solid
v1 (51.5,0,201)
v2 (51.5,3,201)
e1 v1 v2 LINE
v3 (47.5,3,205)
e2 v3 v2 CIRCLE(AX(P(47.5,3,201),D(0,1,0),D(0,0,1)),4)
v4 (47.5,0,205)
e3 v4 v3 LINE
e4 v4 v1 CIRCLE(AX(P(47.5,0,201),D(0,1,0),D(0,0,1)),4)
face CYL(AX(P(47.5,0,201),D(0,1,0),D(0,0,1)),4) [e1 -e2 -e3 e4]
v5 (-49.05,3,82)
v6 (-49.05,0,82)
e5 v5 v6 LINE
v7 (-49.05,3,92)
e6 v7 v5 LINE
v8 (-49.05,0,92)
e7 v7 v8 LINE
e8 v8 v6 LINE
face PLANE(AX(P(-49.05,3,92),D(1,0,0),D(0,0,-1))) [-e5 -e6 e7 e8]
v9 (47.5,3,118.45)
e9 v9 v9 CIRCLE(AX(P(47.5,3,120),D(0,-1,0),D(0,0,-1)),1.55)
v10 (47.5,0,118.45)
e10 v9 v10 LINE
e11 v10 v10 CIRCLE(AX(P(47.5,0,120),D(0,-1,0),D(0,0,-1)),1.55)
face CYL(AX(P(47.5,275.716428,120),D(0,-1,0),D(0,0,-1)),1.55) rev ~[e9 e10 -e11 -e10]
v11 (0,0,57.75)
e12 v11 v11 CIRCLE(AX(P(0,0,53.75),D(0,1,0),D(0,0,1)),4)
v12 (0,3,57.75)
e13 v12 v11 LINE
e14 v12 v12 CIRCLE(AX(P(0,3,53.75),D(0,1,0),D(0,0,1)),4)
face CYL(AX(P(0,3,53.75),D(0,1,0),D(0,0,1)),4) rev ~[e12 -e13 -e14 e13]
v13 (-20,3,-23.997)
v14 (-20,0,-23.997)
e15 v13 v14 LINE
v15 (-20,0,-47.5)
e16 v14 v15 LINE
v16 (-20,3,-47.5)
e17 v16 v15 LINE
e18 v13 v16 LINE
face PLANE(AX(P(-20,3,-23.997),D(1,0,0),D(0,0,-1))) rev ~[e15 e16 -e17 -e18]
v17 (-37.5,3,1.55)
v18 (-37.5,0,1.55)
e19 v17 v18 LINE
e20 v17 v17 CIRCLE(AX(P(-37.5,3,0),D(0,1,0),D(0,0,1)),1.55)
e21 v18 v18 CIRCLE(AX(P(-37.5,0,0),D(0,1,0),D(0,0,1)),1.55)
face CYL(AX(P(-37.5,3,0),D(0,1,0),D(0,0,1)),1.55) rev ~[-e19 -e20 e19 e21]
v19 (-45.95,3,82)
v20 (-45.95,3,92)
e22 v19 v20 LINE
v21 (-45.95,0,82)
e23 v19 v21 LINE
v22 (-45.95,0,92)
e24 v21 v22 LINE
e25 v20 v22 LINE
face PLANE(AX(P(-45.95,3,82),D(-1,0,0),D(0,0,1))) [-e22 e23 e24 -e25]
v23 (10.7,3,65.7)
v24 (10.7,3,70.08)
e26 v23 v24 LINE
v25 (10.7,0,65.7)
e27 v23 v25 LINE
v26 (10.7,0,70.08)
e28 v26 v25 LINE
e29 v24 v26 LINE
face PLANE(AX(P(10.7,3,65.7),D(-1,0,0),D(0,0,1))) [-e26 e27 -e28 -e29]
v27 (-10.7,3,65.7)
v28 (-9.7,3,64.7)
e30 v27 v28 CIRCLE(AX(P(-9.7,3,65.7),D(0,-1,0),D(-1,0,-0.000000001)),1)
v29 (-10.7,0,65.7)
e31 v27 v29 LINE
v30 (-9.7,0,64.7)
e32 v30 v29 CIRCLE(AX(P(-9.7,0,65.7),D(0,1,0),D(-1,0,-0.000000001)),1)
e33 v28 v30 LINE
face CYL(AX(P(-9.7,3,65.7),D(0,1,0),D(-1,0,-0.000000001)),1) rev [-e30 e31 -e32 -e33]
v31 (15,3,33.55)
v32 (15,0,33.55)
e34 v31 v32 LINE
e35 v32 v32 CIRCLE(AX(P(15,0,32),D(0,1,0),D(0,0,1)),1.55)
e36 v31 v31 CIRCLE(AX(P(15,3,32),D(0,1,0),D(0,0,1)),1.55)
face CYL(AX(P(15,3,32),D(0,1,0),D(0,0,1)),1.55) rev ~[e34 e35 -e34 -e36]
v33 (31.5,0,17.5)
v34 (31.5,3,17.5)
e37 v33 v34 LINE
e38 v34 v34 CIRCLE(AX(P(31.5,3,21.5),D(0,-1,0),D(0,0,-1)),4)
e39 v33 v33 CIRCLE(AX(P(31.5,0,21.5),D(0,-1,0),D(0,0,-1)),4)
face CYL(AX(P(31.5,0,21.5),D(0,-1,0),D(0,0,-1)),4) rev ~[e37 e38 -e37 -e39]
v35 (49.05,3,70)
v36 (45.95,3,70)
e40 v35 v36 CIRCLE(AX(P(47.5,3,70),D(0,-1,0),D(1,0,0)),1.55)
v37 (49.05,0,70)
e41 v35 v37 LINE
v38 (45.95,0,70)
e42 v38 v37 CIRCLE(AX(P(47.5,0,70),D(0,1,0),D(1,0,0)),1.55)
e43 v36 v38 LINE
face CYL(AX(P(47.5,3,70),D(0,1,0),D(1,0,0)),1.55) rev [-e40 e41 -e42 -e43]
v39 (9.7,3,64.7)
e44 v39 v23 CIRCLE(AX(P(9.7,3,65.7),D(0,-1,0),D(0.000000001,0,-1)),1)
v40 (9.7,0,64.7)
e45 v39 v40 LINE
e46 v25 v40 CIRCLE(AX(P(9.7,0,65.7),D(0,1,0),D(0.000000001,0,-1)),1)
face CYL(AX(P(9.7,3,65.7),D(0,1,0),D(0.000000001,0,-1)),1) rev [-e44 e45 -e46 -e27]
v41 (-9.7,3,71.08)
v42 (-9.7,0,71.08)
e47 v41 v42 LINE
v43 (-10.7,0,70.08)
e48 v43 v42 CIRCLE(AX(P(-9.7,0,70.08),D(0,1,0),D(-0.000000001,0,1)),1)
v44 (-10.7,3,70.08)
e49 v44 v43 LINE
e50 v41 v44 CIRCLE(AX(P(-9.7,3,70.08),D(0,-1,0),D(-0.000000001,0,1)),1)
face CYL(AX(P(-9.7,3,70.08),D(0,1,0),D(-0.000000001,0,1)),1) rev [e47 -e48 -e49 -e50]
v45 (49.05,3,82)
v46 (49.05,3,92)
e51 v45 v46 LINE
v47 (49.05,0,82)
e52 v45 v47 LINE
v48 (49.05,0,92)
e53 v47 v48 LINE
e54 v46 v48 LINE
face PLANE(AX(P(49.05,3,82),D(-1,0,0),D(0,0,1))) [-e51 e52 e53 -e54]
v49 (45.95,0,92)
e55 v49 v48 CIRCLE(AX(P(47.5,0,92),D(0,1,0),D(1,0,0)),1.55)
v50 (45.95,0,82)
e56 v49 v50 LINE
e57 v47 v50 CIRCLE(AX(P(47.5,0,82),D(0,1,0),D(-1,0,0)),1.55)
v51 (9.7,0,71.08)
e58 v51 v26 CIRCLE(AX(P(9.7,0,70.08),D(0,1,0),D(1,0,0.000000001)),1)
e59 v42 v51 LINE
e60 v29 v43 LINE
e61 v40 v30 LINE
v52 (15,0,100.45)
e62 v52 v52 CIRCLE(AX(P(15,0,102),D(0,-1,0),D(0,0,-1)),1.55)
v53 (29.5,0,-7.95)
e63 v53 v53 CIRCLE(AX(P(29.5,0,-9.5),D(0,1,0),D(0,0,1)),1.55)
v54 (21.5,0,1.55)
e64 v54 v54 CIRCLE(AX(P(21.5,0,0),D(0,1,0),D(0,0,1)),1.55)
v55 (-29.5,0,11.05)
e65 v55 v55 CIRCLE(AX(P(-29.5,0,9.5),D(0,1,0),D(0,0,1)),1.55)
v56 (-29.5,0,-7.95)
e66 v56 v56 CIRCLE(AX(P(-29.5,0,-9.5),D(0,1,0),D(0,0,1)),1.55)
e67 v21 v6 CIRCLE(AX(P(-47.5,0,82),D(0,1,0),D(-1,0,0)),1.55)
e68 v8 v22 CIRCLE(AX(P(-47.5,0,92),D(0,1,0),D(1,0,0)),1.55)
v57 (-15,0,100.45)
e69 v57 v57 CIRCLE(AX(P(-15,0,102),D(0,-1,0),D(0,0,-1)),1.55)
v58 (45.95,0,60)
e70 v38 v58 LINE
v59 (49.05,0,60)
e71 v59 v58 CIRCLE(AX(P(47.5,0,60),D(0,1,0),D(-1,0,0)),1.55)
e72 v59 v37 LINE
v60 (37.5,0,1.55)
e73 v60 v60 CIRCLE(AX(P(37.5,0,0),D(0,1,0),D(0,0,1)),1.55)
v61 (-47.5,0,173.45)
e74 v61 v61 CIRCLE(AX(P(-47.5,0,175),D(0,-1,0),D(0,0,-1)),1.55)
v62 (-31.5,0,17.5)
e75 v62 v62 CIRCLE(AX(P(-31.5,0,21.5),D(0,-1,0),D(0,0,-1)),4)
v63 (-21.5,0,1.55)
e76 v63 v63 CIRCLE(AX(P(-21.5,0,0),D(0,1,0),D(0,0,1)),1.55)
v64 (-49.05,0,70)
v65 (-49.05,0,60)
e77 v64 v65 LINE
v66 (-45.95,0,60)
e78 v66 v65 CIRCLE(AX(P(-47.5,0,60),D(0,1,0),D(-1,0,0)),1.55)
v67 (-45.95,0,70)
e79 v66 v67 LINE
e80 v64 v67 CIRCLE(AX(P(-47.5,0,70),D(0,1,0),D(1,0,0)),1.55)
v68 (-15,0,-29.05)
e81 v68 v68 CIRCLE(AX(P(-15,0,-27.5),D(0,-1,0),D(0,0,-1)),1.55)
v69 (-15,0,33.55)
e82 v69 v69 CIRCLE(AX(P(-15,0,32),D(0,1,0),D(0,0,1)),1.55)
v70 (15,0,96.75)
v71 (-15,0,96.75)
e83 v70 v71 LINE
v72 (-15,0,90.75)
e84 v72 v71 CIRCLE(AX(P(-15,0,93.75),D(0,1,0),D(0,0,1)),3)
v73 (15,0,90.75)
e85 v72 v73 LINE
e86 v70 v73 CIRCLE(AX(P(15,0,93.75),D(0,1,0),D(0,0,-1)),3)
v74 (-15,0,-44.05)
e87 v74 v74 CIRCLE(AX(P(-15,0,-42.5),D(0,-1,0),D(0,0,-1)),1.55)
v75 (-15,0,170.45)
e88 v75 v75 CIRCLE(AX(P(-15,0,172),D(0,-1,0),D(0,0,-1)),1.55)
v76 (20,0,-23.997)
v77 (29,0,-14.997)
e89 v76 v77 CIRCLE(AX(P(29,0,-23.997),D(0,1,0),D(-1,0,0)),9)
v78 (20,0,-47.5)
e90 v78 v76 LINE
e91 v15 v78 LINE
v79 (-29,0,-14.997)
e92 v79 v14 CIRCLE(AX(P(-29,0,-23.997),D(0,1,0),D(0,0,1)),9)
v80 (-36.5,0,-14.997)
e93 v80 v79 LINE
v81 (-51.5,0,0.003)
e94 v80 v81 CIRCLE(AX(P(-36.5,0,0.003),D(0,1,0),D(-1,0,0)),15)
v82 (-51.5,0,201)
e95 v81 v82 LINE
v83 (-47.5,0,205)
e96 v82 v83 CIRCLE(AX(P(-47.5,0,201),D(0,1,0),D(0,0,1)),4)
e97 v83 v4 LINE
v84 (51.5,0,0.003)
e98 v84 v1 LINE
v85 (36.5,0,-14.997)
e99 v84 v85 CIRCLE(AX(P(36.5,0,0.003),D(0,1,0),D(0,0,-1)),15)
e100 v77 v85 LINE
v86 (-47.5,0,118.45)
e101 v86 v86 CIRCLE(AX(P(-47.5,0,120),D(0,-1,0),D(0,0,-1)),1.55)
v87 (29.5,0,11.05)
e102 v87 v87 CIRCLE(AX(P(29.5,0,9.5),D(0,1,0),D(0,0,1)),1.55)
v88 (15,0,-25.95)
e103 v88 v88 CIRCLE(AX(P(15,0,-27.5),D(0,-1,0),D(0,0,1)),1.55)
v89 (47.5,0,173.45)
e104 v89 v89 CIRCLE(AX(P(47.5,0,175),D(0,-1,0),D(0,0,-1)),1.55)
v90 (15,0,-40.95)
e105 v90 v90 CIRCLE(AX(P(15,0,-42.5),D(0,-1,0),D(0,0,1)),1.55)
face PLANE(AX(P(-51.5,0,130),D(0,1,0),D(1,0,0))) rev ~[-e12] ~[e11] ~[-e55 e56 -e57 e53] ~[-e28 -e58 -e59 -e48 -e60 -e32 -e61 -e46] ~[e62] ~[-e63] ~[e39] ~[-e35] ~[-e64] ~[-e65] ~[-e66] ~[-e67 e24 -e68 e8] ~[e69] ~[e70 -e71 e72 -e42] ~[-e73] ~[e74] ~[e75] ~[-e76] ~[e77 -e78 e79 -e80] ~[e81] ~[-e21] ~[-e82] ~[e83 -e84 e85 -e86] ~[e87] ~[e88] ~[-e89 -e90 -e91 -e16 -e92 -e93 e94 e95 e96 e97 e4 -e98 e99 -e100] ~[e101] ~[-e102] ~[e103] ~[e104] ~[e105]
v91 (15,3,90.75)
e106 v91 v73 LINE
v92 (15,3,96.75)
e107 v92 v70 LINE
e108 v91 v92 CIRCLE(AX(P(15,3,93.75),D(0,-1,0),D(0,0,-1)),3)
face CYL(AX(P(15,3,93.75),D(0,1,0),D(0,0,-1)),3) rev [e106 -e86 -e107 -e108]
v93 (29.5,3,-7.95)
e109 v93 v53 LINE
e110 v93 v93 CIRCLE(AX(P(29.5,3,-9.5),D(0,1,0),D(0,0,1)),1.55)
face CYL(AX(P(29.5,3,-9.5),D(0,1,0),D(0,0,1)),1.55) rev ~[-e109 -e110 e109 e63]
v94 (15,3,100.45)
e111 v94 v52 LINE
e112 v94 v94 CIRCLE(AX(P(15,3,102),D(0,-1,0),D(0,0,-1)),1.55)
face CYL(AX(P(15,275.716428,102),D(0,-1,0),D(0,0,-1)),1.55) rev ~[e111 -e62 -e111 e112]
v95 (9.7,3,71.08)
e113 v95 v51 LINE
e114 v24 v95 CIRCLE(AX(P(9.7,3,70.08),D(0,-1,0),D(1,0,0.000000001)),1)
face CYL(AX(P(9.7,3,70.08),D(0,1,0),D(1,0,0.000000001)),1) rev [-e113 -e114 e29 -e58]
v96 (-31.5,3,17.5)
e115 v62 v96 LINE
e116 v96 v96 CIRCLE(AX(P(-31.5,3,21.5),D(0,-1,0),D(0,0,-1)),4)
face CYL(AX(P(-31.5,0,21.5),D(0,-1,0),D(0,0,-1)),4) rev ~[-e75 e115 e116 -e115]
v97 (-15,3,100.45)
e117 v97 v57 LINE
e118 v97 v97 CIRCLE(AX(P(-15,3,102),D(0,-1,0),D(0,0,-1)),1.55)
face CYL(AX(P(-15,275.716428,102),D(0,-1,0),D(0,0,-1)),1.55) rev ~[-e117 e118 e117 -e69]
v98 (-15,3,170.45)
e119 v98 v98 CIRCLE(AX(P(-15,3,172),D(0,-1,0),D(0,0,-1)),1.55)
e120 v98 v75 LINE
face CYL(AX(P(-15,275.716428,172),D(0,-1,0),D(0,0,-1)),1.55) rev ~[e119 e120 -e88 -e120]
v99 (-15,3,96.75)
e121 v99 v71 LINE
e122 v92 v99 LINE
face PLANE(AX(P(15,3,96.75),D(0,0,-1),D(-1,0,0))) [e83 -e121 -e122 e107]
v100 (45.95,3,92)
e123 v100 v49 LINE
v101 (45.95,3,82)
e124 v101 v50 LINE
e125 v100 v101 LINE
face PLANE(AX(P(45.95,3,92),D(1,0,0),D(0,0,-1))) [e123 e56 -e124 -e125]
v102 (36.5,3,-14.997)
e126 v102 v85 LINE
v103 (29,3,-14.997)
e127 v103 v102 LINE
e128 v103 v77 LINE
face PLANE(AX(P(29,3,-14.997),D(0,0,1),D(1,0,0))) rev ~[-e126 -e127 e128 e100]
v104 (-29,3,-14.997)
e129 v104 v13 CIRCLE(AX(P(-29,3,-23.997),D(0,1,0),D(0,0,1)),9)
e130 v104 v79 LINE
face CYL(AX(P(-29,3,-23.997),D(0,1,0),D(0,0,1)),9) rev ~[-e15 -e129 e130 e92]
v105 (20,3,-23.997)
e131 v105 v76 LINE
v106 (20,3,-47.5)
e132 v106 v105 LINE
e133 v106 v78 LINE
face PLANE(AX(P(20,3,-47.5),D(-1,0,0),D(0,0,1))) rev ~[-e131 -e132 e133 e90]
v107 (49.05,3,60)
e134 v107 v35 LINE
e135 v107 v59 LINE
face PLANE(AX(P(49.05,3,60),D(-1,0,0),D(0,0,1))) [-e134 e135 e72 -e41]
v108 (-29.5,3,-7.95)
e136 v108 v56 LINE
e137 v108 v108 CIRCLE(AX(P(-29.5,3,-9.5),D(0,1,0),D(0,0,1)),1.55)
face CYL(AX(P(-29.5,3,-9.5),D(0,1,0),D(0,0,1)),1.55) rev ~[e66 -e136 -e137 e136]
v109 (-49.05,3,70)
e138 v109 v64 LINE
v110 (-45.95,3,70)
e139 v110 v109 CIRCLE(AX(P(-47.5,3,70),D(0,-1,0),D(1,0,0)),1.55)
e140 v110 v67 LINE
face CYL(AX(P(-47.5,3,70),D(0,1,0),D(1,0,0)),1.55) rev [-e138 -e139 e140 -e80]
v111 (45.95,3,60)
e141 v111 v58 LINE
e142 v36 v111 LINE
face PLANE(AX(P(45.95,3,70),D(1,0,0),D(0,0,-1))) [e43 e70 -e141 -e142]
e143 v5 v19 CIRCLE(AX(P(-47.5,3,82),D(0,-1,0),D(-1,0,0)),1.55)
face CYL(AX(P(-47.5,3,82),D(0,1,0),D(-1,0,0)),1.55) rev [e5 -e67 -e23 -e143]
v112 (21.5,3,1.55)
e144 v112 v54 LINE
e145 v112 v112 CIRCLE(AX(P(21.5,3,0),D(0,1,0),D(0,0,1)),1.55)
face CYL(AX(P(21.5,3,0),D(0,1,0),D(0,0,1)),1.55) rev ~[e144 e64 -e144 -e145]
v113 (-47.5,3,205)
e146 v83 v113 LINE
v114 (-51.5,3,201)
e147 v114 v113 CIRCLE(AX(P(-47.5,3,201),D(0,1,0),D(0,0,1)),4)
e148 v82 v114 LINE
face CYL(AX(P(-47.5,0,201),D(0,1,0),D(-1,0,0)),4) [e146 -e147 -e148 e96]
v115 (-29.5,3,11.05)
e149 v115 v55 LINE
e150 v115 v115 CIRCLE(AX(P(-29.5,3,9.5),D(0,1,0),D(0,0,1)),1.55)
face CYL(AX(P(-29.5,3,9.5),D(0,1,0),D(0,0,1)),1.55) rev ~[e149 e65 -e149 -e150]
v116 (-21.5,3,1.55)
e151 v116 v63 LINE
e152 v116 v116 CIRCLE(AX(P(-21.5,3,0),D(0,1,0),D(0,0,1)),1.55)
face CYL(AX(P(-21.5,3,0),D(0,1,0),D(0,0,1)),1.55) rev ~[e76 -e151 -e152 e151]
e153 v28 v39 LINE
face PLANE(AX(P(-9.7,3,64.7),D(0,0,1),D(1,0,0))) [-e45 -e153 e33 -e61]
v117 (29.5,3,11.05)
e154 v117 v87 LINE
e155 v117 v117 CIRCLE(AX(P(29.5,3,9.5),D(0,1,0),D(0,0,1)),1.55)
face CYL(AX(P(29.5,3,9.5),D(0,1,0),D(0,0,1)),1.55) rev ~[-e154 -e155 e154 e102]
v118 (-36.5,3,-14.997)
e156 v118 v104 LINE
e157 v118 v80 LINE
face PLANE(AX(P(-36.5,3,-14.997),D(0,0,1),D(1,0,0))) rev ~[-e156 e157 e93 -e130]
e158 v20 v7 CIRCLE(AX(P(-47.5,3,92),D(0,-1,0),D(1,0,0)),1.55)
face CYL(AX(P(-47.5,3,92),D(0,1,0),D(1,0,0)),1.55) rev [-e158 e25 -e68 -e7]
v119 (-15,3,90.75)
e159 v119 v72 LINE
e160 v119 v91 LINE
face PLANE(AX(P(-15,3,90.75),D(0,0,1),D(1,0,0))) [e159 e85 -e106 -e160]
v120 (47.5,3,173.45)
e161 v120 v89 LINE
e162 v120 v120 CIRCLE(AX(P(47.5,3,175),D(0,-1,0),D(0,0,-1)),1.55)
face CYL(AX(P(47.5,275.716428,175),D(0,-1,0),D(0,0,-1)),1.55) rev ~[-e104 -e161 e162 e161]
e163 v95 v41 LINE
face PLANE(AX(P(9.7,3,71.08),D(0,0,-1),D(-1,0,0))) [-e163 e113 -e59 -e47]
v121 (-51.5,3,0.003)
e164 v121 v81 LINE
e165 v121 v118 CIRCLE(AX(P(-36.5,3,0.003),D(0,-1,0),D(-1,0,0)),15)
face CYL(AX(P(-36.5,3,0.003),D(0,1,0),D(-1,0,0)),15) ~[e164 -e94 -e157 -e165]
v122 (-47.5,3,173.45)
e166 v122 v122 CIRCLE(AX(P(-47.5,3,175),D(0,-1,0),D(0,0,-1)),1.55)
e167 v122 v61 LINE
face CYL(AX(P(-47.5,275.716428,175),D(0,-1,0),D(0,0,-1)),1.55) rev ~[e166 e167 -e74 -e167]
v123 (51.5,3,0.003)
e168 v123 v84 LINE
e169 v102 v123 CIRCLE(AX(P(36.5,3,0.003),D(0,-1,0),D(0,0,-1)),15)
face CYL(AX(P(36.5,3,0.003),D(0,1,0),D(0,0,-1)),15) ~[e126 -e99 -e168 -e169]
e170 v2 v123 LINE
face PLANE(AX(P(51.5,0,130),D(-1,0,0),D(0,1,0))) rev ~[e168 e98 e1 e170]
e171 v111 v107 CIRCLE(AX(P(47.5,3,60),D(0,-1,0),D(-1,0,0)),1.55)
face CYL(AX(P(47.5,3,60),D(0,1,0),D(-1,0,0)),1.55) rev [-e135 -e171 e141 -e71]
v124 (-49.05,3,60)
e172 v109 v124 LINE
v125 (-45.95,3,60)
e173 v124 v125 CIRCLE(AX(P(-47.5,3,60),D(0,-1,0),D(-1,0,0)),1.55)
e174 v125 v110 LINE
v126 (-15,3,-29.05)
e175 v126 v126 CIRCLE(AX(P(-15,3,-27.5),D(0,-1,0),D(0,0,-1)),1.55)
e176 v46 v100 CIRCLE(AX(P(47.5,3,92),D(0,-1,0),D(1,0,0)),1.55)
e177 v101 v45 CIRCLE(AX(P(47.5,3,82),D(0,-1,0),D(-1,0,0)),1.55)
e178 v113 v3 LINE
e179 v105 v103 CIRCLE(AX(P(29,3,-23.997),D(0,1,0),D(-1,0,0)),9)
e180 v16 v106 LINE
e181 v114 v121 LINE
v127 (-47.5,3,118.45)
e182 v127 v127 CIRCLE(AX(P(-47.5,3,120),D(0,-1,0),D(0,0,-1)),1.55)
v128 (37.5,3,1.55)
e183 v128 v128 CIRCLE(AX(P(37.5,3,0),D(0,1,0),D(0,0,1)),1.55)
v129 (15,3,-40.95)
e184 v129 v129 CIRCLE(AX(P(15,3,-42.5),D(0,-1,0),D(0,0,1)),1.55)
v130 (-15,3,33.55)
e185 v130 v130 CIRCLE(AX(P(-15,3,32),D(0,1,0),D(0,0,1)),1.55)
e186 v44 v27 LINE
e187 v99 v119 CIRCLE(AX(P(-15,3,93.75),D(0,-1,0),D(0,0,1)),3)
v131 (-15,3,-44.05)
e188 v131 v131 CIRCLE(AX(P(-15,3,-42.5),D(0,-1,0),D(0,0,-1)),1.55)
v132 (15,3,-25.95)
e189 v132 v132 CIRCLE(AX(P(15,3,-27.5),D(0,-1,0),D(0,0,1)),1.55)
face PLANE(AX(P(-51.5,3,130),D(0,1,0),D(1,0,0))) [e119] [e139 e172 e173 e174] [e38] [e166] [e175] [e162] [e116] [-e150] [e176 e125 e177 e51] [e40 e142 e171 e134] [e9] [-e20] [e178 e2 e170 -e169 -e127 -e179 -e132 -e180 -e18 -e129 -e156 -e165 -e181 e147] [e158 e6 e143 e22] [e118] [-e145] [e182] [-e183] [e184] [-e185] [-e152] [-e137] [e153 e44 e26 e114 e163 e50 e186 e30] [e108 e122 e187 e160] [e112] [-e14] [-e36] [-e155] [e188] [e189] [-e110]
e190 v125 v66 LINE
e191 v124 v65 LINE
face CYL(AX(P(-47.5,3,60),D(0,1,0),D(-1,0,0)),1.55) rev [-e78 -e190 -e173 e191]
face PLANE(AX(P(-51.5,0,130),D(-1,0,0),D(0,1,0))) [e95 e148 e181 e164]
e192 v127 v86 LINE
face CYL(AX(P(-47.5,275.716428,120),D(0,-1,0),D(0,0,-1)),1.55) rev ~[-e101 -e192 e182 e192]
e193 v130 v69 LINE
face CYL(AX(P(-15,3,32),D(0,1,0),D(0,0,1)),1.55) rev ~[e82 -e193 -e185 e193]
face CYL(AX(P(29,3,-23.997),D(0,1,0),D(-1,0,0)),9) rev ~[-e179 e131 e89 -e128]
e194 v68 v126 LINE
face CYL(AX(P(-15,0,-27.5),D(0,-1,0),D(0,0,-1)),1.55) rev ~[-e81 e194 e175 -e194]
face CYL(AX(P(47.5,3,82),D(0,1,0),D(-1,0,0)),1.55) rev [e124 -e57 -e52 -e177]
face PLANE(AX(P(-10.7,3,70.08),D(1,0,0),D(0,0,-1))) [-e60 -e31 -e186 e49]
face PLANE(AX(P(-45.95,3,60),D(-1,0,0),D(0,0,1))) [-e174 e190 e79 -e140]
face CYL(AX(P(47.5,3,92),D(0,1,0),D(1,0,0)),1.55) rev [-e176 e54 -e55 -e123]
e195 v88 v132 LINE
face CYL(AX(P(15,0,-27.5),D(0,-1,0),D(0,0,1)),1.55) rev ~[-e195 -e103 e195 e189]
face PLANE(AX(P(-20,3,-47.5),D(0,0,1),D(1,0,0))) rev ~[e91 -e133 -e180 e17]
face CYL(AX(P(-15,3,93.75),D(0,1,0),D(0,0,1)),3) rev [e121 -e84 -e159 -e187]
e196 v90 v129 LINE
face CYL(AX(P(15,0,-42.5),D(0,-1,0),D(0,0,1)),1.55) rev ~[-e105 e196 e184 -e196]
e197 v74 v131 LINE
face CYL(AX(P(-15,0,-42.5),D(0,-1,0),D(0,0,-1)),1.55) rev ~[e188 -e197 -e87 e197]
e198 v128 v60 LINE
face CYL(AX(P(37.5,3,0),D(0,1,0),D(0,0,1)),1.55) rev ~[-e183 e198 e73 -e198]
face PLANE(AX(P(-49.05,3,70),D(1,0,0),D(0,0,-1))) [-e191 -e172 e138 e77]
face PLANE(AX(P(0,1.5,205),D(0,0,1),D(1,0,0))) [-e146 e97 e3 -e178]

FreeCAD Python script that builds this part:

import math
import FreeCAD as App
import Part
import Sketcher
from FreeCAD import Vector


def edges_at(feature, points):
    """Names of the edges that pass closest to the given points."""
    edges = feature.Shape.Edges
    near = lambda p: min(range(len(edges)), key=lambda i: edges[i].distToShape(Part.Vertex(*p))[0])
    return sorted({f"Edge{near(p) + 1}" for p in points})

doc = App.newDocument("Part")
body = doc.addObject("PartDesign::Body", "Body")

# Sketch on XZ plane
sketch1 = doc.addObject("Sketcher::SketchObject", "Sketch")
body.addObject(sketch1)
sketch1.AttachmentSupport = (doc.XZ_Plane, [""])
sketch1.MapMode = "FlatFace"
sketch1.addGeometry([
    Part.LineSegment(Vector(-100, -100, 0), Vector(-100, 100, 0)),
    Part.LineSegment(Vector(-100, 100, 0), Vector(100, 100, 0)),
    Part.LineSegment(Vector(100, 100, 0), Vector(100, -100, 0)),
    Part.LineSegment(Vector(100, -100, 0), Vector(-100, -100, 0)),
], False)
sketch1.addConstraint([
    Sketcher.Constraint("Coincident", 0, 2, 1, 1),
    Sketcher.Constraint("Coincident", 1, 2, 2, 1),
    Sketcher.Constraint("Coincident", 2, 2, 3, 1),
    Sketcher.Constraint("Coincident", 3, 2, 0, 1),
    Sketcher.Constraint("Vertical", 0),
    Sketcher.Constraint("Horizontal", 1),
    Sketcher.Constraint("Vertical", 2),
    Sketcher.Constraint("Horizontal", 3),
    Sketcher.Constraint("Symmetric", 0, 2, 2, 2, -1, 1),
    Sketcher.Constraint("Equal", 3, 0),
    Sketcher.Constraint("DistanceX", 1, 1, 1, 2, 200.0),
])
pad1 = doc.addObject("PartDesign::Pad", "Pad")
body.addObject(pad1)
pad1.Profile = sketch1
pad1.Length = 3
pad1.Reversed = True

# Sketch on XZ plane
sketch2 = doc.addObject("Sketcher::SketchObject", "Sketch001")
body.addObject(sketch2)
sketch2.AttachmentSupport = (doc.XZ_Plane, [""])
sketch2.MapMode = "FlatFace"
sketch2.AttachmentOffset = App.Placement(Vector(0, 0, -3), App.Rotation())
sketch2.addGeometry([
    Part.Circle(Vector(29.5, -9.5, 0), Vector(0, 0, 1), 1.6),  # 0
    Part.Circle(Vector(21.5, 0, 0), Vector(0, 0, 1), 1.6),  # 1
    Part.Circle(Vector(29.5, 9.5, 0), Vector(0, 0, 1), 1.6),  # 2
    Part.Circle(Vector(37.5, 0, 0), Vector(0, 0, 1), 1.6),  # 3
    Part.Circle(Vector(-29.5, 9.5, 0), Vector(0, 0, 1), 1.6),  # 4
    Part.Circle(Vector(-37.5, 0, 0), Vector(0, 0, 1), 1.6),  # 5
    Part.Circle(Vector(-21.5, 0, 0), Vector(0, 0, 1), 1.6),  # 6
    Part.Circle(Vector(-29.5, -9.5, 0), Vector(0, 0, 1), 1.6),  # 7
    Part.Circle(Vector(-15, 32, 0), Vector(0, 0, 1), 1.6),  # 8
    Part.Circle(Vector(15, 32, 0), Vector(0, 0, 1), 1.6),  # 9
], False)
sketch2.addConstraint([
    Sketcher.Constraint("Equal", 0, 1),
    Sketcher.Constraint("Equal", 1, 2),
    Sketcher.Constraint("Equal", 2, 3),
    Sketcher.Constraint("Equal", 3, 4),
    Sketcher.Constraint("Equal", 4, 5),
    Sketcher.Constraint("Equal", 5, 6),
    Sketcher.Constraint("Equal", 6, 7),
    Sketcher.Constraint("Equal", 7, 8),
    Sketcher.Constraint("Equal", 8, 9),
    Sketcher.Constraint("Symmetric", 0, 3, 4, 3, -1, 1),
    Sketcher.Constraint("Symmetric", 3, 3, 5, 3, -1, 1),
    Sketcher.Constraint("Symmetric", 1, 3, 6, 3, -1, 1),
    Sketcher.Constraint("Symmetric", 2, 3, 7, 3, -1, 1),
    Sketcher.Constraint("Symmetric", 2, 3, 4, 3, -2),
    Sketcher.Constraint("Symmetric", 8, 3, 9, 3, -2),
    Sketcher.Constraint("PointOnObject", 1, 3, -1),
    Sketcher.Constraint("PointOnObject", 3, 3, -1),
    Sketcher.Constraint("Diameter", 0, 3.1),
    Sketcher.Constraint("DistanceX", 8, 3, -1, 1, 15.0),
    Sketcher.Constraint("DistanceY", -1, 1, 8, 3, 32.0),
    Sketcher.Constraint("DistanceX", 1, 3, 0, 3, 8.0),
    Sketcher.Constraint("DistanceY", 0, 3, 2, 3, 19.0),
    Sketcher.Constraint("DistanceX", 0, 3, 3, 3, 8.0),
    Sketcher.Constraint("DistanceX", 4, 3, 1, 3, 51.0),
])
pocket1 = doc.addObject("PartDesign::Pocket", "Pocket")
body.addObject(pocket1)
pocket1.Profile = sketch2
pocket1.Length = 10
pocket1.Reversed = True

# Sketch on XZ plane
sketch3 = doc.addObject("Sketcher::SketchObject", "Sketch002")
body.addObject(sketch3)
sketch3.AttachmentSupport = (doc.XZ_Plane, [""])
sketch3.MapMode = "FlatFace"
sketch3.AttachmentOffset = App.Placement(Vector(0, 0, -3), App.Rotation())
sketch3.addGeometry([
    Part.LineSegment(Vector(52, 0, 0), Vector(52, 100, 0)),  # 0
    Part.LineSegment(Vector(52, 100, 0), Vector(100, 100, 0)),  # 1
    Part.LineSegment(Vector(100, 100, 0), Vector(100, -100, 0)),  # 2
    Part.LineSegment(Vector(100, -100, 0), Vector(-100, -100, 0)),  # 3
    Part.LineSegment(Vector(-100, -100, 0), Vector(-100, 100, 0)),  # 4
    Part.LineSegment(Vector(-100, 100, 0), Vector(-52, 100, 0)),  # 5
    Part.LineSegment(Vector(-52, 100, 0), Vector(-52, 0, 0)),  # 6
    Part.ArcOfCircle(Part.Circle(Vector(-37, 0, 0), Vector(0, 0, 1), 15), math.radians(180), math.radians(270)),  # 7
    Part.LineSegment(Vector(-36, -15, 0), Vector(-29, -15, 0)),  # 8
    Part.ArcOfCircle(Part.Circle(Vector(-29, -24, 0), Vector(0, 0, 1), 9), math.radians(0), math.radians(90)),  # 9
    Part.LineSegment(Vector(-20, -24, 0), Vector(-20, -48, 0)),  # 10
    Part.LineSegment(Vector(-20, -48, 0), Vector(20, -48, 0)),  # 11
    Part.LineSegment(Vector(20, -48, 0), Vector(20, -24, 0)),  # 12
    Part.ArcOfCircle(Part.Circle(Vector(29, -24, 0), Vector(0, 0, 1), 9), math.radians(90), math.radians(180)),  # 13
    Part.LineSegment(Vector(29, -15, 0), Vector(36, -15, 0)),  # 14
    Part.ArcOfCircle(Part.Circle(Vector(37, 0, 0), Vector(0, 0, 1), 15), math.radians(-90), math.radians(0)),  # 15
], False)
sketch3.addConstraint([
    Sketcher.Constraint("Coincident", 0, 2, 1, 1),
    Sketcher.Constraint("Coincident", 1, 2, 2, 1),
    Sketcher.Constraint("Coincident", 2, 2, 3, 1),
    Sketcher.Constraint("Coincident", 3, 2, 4, 1),
    Sketcher.Constraint("Coincident", 4, 2, 5, 1),
    Sketcher.Constraint("Coincident", 5, 2, 6, 1),
    Sketcher.Constraint("Tangent", 6, 2, 7, 1),
    Sketcher.Constraint("Tangent", 7, 2, 8, 1),
    Sketcher.Constraint("Tangent", 8, 2, 9, 2),
    Sketcher.Constraint("Tangent", 9, 1, 10, 1),
    Sketcher.Constraint("Coincident", 10, 2, 11, 1),
    Sketcher.Constraint("Coincident", 11, 2, 12, 1),
    Sketcher.Constraint("Tangent", 12, 2, 13, 2),
    Sketcher.Constraint("Tangent", 13, 1, 14, 1),
    Sketcher.Constraint("Tangent", 14, 2, 15, 1),
    Sketcher.Constraint("Tangent", 15, 2, 0, 1),
    Sketcher.Constraint("Vertical", 0),
    Sketcher.Constraint("Horizontal", 1),
    Sketcher.Constraint("Vertical", 2),
    Sketcher.Constraint("Horizontal", 3),
    Sketcher.Constraint("Vertical", 4),
    Sketcher.Constraint("Horizontal", 5),
    Sketcher.Constraint("Vertical", 6),
    Sketcher.Constraint("Horizontal", 8),
    Sketcher.Constraint("Vertical", 10),
    Sketcher.Constraint("Horizontal", 11),
    Sketcher.Constraint("Vertical", 12),
    Sketcher.Constraint("Horizontal", 14),
    Sketcher.Constraint("Equal", 9, 13),
    Sketcher.Constraint("Equal", 7, 15),
    Sketcher.Constraint("Symmetric", 1, 2, 3, 2, -1, 1),
    Sketcher.Constraint("Symmetric", 9, 3, 13, 3, -2),
    Sketcher.Constraint("Symmetric", 0, 2, 5, 2, -2),
    Sketcher.Constraint("Equal", 3, 2),
    Sketcher.Constraint("Radius", 7, 15.0),
    Sketcher.Constraint("Radius", 9, 9.0),
    Sketcher.Constraint("DistanceX", 3, 2, 3, 1, 200.0),
    Sketcher.Constraint("DistanceX", 11, 1, 11, 2, 40.0),
    Sketcher.Constraint("DistanceX", 1, 1, 1, 2, 48.5),
    Sketcher.Constraint("DistanceY", 10, 2, -1, 1, 47.5),
    Sketcher.Constraint("DistanceY", 0, 1, 0, 2, 99.997),
])
pocket2 = doc.addObject("PartDesign::Pocket", "Pocket001")
body.addObject(pocket2)
pocket2.Profile = sketch3
pocket2.Length = 10
pocket2.Reversed = True

# Sketch on XZ plane
sketch4 = doc.addObject("Sketcher::SketchObject", "Sketch003")
body.addObject(sketch4)
sketch4.AttachmentSupport = (doc.XZ_Plane, [""])
sketch4.MapMode = "FlatFace"
sketch4.addGeometry([
    Part.Circle(Vector(-15, -42.5, 0), Vector(0, 0, 1), 1.6),
    Part.Circle(Vector(-15, -27.5, 0), Vector(0, 0, 1), 1.6),
    Part.Circle(Vector(15, -27.5, 0), Vector(0, 0, 1), 1.6),
    Part.Circle(Vector(15, -42.5, 0), Vector(0, 0, 1), 1.6),
], False)
sketch4.addConstraint([
    Sketcher.Constraint("Equal", 0, 1),
    Sketcher.Constraint("Equal", 1, 2),
    Sketcher.Constraint("Equal", 2, 3),
    Sketcher.Constraint("Symmetric", 1, 3, 2, 3, -2),
    Sketcher.Constraint("Symmetric", 0, 3, 3, 3, -2),
    Sketcher.Constraint("Vertical", 0, 3, 1, 3),
    Sketcher.Constraint("Diameter", 0, 3.1),
    Sketcher.Constraint("DistanceX", 0, 3, -1, 1, 15.0),
    Sketcher.Constraint("DistanceY", 0, 3, 1, 3, 15.0),
    Sketcher.Constraint("DistanceY", 0, 3, -1, 1, 42.5),
])
pocket3 = doc.addObject("PartDesign::Pocket", "Pocket002")
body.addObject(pocket3)
pocket3.Profile = sketch4
pocket3.Length = 10

# Sketch on XZ plane
sketch5 = doc.addObject("Sketcher::SketchObject", "Sketch004")
body.addObject(sketch5)
sketch5.AttachmentSupport = (doc.XZ_Plane, [""])
sketch5.MapMode = "FlatFace"
sketch5.AttachmentOffset = App.Placement(Vector(0, 0, -3), App.Rotation())
sketch5.addGeometry(Part.Circle(Vector(0, 53.8, 0), Vector(0, 0, 1), 4), False)
sketch5.addConstraint([
    Sketcher.Constraint("PointOnObject", 0, 3, -2),
    Sketcher.Constraint("Diameter", 0, 8.0),
    Sketcher.Constraint("DistanceY", -1, 1, 0, 3, 53.75),
])
pocket4 = doc.addObject("PartDesign::Pocket", "Pocket003")
body.addObject(pocket4)
pocket4.Profile = sketch5
pocket4.Type = "ThroughAll"
pocket4.Reversed = True

# Sketch on XY plane
sketch6 = doc.addObject("Sketcher::SketchObject", "Sketch005")
body.addObject(sketch6)
sketch6.AttachmentSupport = (doc.XY_Plane, [""])
sketch6.MapMode = "FlatFace"
sketch6.AttachmentOffset = App.Placement(Vector(0, 0, 100), App.Rotation())
sketch6.addGeometry([
    Part.LineSegment(Vector(-51.5, 3, 0), Vector(-51.5, 0, 0)),
    Part.LineSegment(Vector(-51.5, 0, 0), Vector(51.5, 0, 0)),
    Part.LineSegment(Vector(51.5, 0, 0), Vector(51.5, 3, 0)),
    Part.LineSegment(Vector(51.5, 3, 0), Vector(-51.5, 3, 0)),
], False)
sketch6.addConstraint([
    Sketcher.Constraint("Coincident", 0, 2, 1, 1),
    Sketcher.Constraint("Coincident", 1, 2, 2, 1),
    Sketcher.Constraint("Coincident", 2, 2, 3, 1),
    Sketcher.Constraint("Coincident", 3, 2, 0, 1),
    Sketcher.Constraint("Vertical", 0),
    Sketcher.Constraint("Horizontal", 1),
    Sketcher.Constraint("Vertical", 2),
    Sketcher.Constraint("Horizontal", 3),
    Sketcher.Constraint("Symmetric", 0, 2, 1, 2, -1, 1),
    Sketcher.Constraint("DistanceX", 1, 1, 1, 2, 103.0),
    Sketcher.Constraint("DistanceY", 0, 2, 0, 1, 3.0),
])
pad2 = doc.addObject("PartDesign::Pad", "Pad001")
body.addObject(pad2)
pad2.Profile = sketch6
pad2.Length = 30

# Sketch on XZ plane
sketch7 = doc.addObject("Sketcher::SketchObject", "Sketch006")
body.addObject(sketch7)
sketch7.AttachmentSupport = (doc.XZ_Plane, [""])
sketch7.MapMode = "FlatFace"
sketch7.addGeometry(Part.Circle(Vector(-31.5, 21.5, 0), Vector(0, 0, 1), 4), False)
sketch7.addConstraint([
    Sketcher.Constraint("Diameter", 0, 8.0),
    Sketcher.Constraint("DistanceX", 0, 3, -1, 1, 31.5),
    Sketcher.Constraint("DistanceY", -1, 1, 0, 3, 21.5),
])
pocket5 = doc.addObject("PartDesign::Pocket", "Pocket004")
body.addObject(pocket5)
pocket5.Profile = sketch7
pocket5.Type = "UpToFirst"

# Sketch on XZ plane
sketch8 = doc.addObject("Sketcher::SketchObject", "Sketch007")
body.addObject(sketch8)
sketch8.AttachmentSupport = (doc.XZ_Plane, [""])
sketch8.MapMode = "FlatFace"
sketch8.addGeometry(Part.Circle(Vector(31.5, 21.5, 0), Vector(0, 0, 1), 4), False)
sketch8.addConstraint([
    Sketcher.Constraint("Diameter", 0, 8.0),
    Sketcher.Constraint("DistanceX", -1, 1, 0, 3, 31.5),
    Sketcher.Constraint("DistanceY", -1, 1, 0, 3, 21.5),
])
pocket6 = doc.addObject("PartDesign::Pocket", "Pocket005")
body.addObject(pocket6)
pocket6.Profile = sketch8
pocket6.Type = "UpToFirst"

# Sketch on XZ plane
sketch9 = doc.addObject("Sketcher::SketchObject", "Sketch008")
body.addObject(sketch9)
sketch9.AttachmentSupport = (doc.XZ_Plane, [""])
sketch9.MapMode = "FlatFace"
sketch9.AttachmentOffset = App.Placement(Vector(0, 0, -3), App.Rotation())
sketch9.addGeometry([
    Part.LineSegment(Vector(9.7, 64.7, 0), Vector(-9.7, 64.7, 0)),  # 0
    Part.ArcOfCircle(Part.Circle(Vector(-9.7, 65.7, 0), Vector(0, 0, 1), 1), math.radians(-180), math.radians(-90)),  # 1
    Part.LineSegment(Vector(-10.7, 65.7, 0), Vector(-10.7, 70.1, 0)),  # 2
    Part.ArcOfCircle(Part.Circle(Vector(-9.7, 70.1, 0), Vector(0, 0, 1), 1), math.radians(90), math.radians(180)),  # 3
    Part.LineSegment(Vector(-9.7, 71.1, 0), Vector(9.7, 71.1, 0)),  # 4
    Part.ArcOfCircle(Part.Circle(Vector(9.7, 70.1, 0), Vector(0, 0, 1), 1), math.radians(0), math.radians(90)),  # 5
    Part.LineSegment(Vector(10.7, 70.1, 0), Vector(10.7, 65.7, 0)),  # 6
    Part.ArcOfCircle(Part.Circle(Vector(9.7, 65.7, 0), Vector(0, 0, 1), 1), math.radians(-90), math.radians(0)),  # 7
], False)
sketch9.addConstraint([
    Sketcher.Constraint("Tangent", 0, 2, 1, 2),
    Sketcher.Constraint("Tangent", 1, 1, 2, 1),
    Sketcher.Constraint("Tangent", 2, 2, 3, 2),
    Sketcher.Constraint("Tangent", 3, 1, 4, 1),
    Sketcher.Constraint("Tangent", 4, 2, 5, 2),
    Sketcher.Constraint("Tangent", 5, 1, 6, 1),
    Sketcher.Constraint("Tangent", 6, 2, 7, 2),
    Sketcher.Constraint("Tangent", 7, 1, 0, 1),
    Sketcher.Constraint("Horizontal", 0),
    Sketcher.Constraint("Vertical", 2),
    Sketcher.Constraint("Horizontal", 4),
    Sketcher.Constraint("Vertical", 6),
    Sketcher.Constraint("Equal", 1, 3),
    Sketcher.Constraint("Equal", 3, 5),
    Sketcher.Constraint("Equal", 5, 7),
    Sketcher.Constraint("Radius", 1, 1.0),
    Sketcher.Constraint("DistanceX", 0, 2, 0, 1, 19.4),
    Sketcher.Constraint("DistanceY", 2, 1, 2, 2, 4.38),
    Sketcher.Constraint("DistanceX", 1, 3, -1, 1, 9.7),
    Sketcher.Constraint("DistanceY", -1, 1, 1, 3, 65.7),
])
pocket7 = doc.addObject("PartDesign::Pocket", "Pocket006")
body.addObject(pocket7)
pocket7.Profile = sketch9
pocket7.Type = "UpToFirst"
pocket7.Reversed = True

# Sketch on XZ plane
sketch10 = doc.addObject("Sketcher::SketchObject", "Sketch009")
body.addObject(sketch10)
sketch10.AttachmentSupport = (doc.XZ_Plane, [""])
sketch10.MapMode = "FlatFace"
sketch10.AttachmentOffset = App.Placement(Vector(0, 0, -3), App.Rotation())
sketch10.addGeometry([
    Part.LineSegment(Vector(-49, 60, 0), Vector(-49, 70, 0)),  # 0
    Part.ArcOfCircle(Part.Circle(Vector(-47.5, 70, 0), Vector(0, 0, 1), 1.6), math.radians(0), math.radians(180)),  # 1
    Part.LineSegment(Vector(-46, 70, 0), Vector(-46, 60, 0)),  # 2
    Part.ArcOfCircle(Part.Circle(Vector(-47.5, 60, 0), Vector(0, 0, 1), 1.6), math.radians(180), math.radians(360)),  # 3
    Part.LineSegment(Vector(-49, 82, 0), Vector(-49, 92, 0)),  # 4
    Part.ArcOfCircle(Part.Circle(Vector(-47.5, 92, 0), Vector(0, 0, 1), 1.6), math.radians(0), math.radians(180)),  # 5
    Part.LineSegment(Vector(-46, 92, 0), Vector(-46, 82, 0)),  # 6
    Part.ArcOfCircle(Part.Circle(Vector(-47.5, 82, 0), Vector(0, 0, 1), 1.6), math.radians(180), math.radians(360)),  # 7
    Part.LineSegment(Vector(46, 82, 0), Vector(46, 92, 0)),  # 8
    Part.ArcOfCircle(Part.Circle(Vector(47.5, 92, 0), Vector(0, 0, 1), 1.6), math.radians(0), math.radians(180)),  # 9
    Part.LineSegment(Vector(49, 92, 0), Vector(49, 82, 0)),  # 10
    Part.ArcOfCircle(Part.Circle(Vector(47.5, 82, 0), Vector(0, 0, 1), 1.6), math.radians(180), math.radians(360)),  # 11
    Part.LineSegment(Vector(46, 60, 0), Vector(46, 70, 0)),  # 12
    Part.ArcOfCircle(Part.Circle(Vector(47.5, 70, 0), Vector(0, 0, 1), 1.6), math.radians(0), math.radians(180)),  # 13
    Part.LineSegment(Vector(49, 70, 0), Vector(49, 60, 0)),  # 14
    Part.ArcOfCircle(Part.Circle(Vector(47.5, 60, 0), Vector(0, 0, 1), 1.6), math.radians(180), math.radians(360)),  # 15
], False)
sketch10.addConstraint([
    Sketcher.Constraint("Tangent", 0, 2, 1, 2),
    Sketcher.Constraint("Tangent", 1, 1, 2, 1),
    Sketcher.Constraint("Tangent", 2, 2, 3, 2),
    Sketcher.Constraint("Tangent", 3, 1, 0, 1),
    Sketcher.Constraint("Tangent", 4, 2, 5, 2),
    Sketcher.Constraint("Tangent", 5, 1, 6, 1),
    Sketcher.Constraint("Tangent", 6, 2, 7, 2),
    Sketcher.Constraint("Tangent", 7, 1, 4, 1),
    Sketcher.Constraint("Tangent", 8, 2, 9, 2),
    Sketcher.Constraint("Tangent", 9, 1, 10, 1),
    Sketcher.Constraint("Tangent", 10, 2, 11, 2),
    Sketcher.Constraint("Tangent", 11, 1, 8, 1),
    Sketcher.Constraint("Tangent", 12, 2, 13, 2),
    Sketcher.Constraint("Tangent", 13, 1, 14, 1),
    Sketcher.Constraint("Tangent", 14, 2, 15, 2),
    Sketcher.Constraint("Tangent", 15, 1, 12, 1),
    Sketcher.Constraint("Vertical", 0),
    Sketcher.Constraint("Vertical", 2),
    Sketcher.Constraint("Vertical", 4),
    Sketcher.Constraint("Vertical", 6),
    Sketcher.Constraint("Vertical", 8),
    Sketcher.Constraint("Vertical", 10),
    Sketcher.Constraint("Vertical", 12),
    Sketcher.Constraint("Vertical", 14),
    Sketcher.Constraint("Equal", 3, 5),
    Sketcher.Constraint("Equal", 7, 9),
    Sketcher.Constraint("Equal", 11, 13),
    Sketcher.Constraint("Symmetric", 5, 3, 9, 3, -2),
    Sketcher.Constraint("Symmetric", 1, 3, 13, 3, -2),
    Sketcher.Constraint("Horizontal", 7, 3, 11, 3),
    Sketcher.Constraint("Horizontal", 3, 3, 15, 3),
    Sketcher.Constraint("Vertical", 3, 3, 5, 3),
    Sketcher.Constraint("Equal", 2, 4),
    Sketcher.Constraint("DistanceY", 0, 1, 0, 2, 10.0),
    Sketcher.Constraint("Radius", 1, 1.55),
    Sketcher.Constraint("DistanceY", -1, 1, 1, 3, 70.0),
    Sketcher.Constraint("DistanceY", -1, 1, 5, 3, 92.0),
    Sketcher.Constraint("DistanceX", 5, 3, 9, 3, 95.0),
])
pocket8 = doc.addObject("PartDesign::Pocket", "Pocket007")
body.addObject(pocket8)
pocket8.Profile = sketch10
pocket8.Length = 10
pocket8.Reversed = True

# Sketch on XY plane
sketch11 = doc.addObject("Sketcher::SketchObject", "Sketch010")
body.addObject(sketch11)
sketch11.AttachmentSupport = (doc.XY_Plane, [""])
sketch11.MapMode = "FlatFace"
sketch11.AttachmentOffset = App.Placement(Vector(0, 0, 130), App.Rotation())
sketch11.addGeometry([
    Part.LineSegment(Vector(-51.5, 3, 0), Vector(-51.5, 0, 0)),
    Part.LineSegment(Vector(-51.5, 0, 0), Vector(51.5, 0, 0)),
    Part.LineSegment(Vector(51.5, 0, 0), Vector(51.5, 3, 0)),
    Part.LineSegment(Vector(51.5, 3, 0), Vector(-51.5, 3, 0)),
], False)
sketch11.addConstraint([
    Sketcher.Constraint("Coincident", 0, 2, 1, 1),
    Sketcher.Constraint("Coincident", 1, 2, 2, 1),
    Sketcher.Constraint("Coincident", 2, 2, 3, 1),
    Sketcher.Constraint("Coincident", 3, 2, 0, 1),
    Sketcher.Constraint("Vertical", 0),
    Sketcher.Constraint("Horizontal", 1),
    Sketcher.Constraint("Vertical", 2),
    Sketcher.Constraint("Horizontal", 3),
    Sketcher.Constraint("Symmetric", 0, 2, 1, 2, -1, 1),
    Sketcher.Constraint("DistanceX", 1, 1, 1, 2, 103.0),
    Sketcher.Constraint("DistanceY", 0, 2, 0, 1, 3.0),
])
pad3 = doc.addObject("PartDesign::Pad", "Pad002")
body.addObject(pad3)
pad3.Profile = sketch11
pad3.Length = 75

# Sketch on XZ plane
sketch12 = doc.addObject("Sketcher::SketchObject", "Sketch011")
body.addObject(sketch12)
sketch12.AttachmentSupport = (doc.XZ_Plane, [""])
sketch12.MapMode = "FlatFace"
sketch12.AttachmentOffset = App.Placement(Vector(0, 0, -3), App.Rotation())
sketch12.addGeometry([
    Part.LineSegment(Vector(15, 90.8, 0), Vector(-15, 90.8, 0)),
    Part.ArcOfCircle(Part.Circle(Vector(-15, 93.8, 0), Vector(0, 0, 1), 3), math.radians(90), math.radians(270)),
    Part.LineSegment(Vector(-15, 96.8, 0), Vector(15, 96.8, 0)),
    Part.ArcOfCircle(Part.Circle(Vector(15, 93.8, 0), Vector(0, 0, 1), 3), math.radians(-90), math.radians(90)),
], False)
sketch12.addConstraint([
    Sketcher.Constraint("Tangent", 0, 2, 1, 2),
    Sketcher.Constraint("Tangent", 1, 1, 2, 1),
    Sketcher.Constraint("Tangent", 2, 2, 3, 2),
    Sketcher.Constraint("Tangent", 3, 1, 0, 1),
    Sketcher.Constraint("Horizontal", 0),
    Sketcher.Constraint("Horizontal", 2),
    Sketcher.Constraint("Radius", 1, 3.0),
    Sketcher.Constraint("DistanceX", 0, 2, 0, 1, 30.0),
    Sketcher.Constraint("DistanceX", 1, 3, -1, 1, 15.0),
    Sketcher.Constraint("DistanceY", -1, 1, 1, 3, 93.75),
])
pocket9 = doc.addObject("PartDesign::Pocket", "Pocket008")
body.addObject(pocket9)
pocket9.Profile = sketch12
pocket9.Length = 10
pocket9.Reversed = True

# Sketch on XZ plane
sketch13 = doc.addObject("Sketcher::SketchObject", "Sketch012")
body.addObject(sketch13)
sketch13.AttachmentSupport = (doc.XZ_Plane, [""])
sketch13.MapMode = "FlatFace"
sketch13.AttachmentOffset = App.Placement(Vector(0, 0, -3), App.Rotation())
sketch13.addGeometry([
    Part.Circle(Vector(-47.5, 120, 0), Vector(0, 0, 1), 1.6),
    Part.Circle(Vector(47.5, 120, 0), Vector(0, 0, 1), 1.6),
    Part.Circle(Vector(-47.5, 175, 0), Vector(0, 0, 1), 1.6),
    Part.Circle(Vector(47.5, 175, 0), Vector(0, 0, 1), 1.6),
], False)
sketch13.addConstraint([
    Sketcher.Constraint("Equal", 0, 1),
    Sketcher.Constraint("Equal", 1, 2),
    Sketcher.Constraint("Equal", 2, 3),
    Sketcher.Constraint("Symmetric", 0, 3, 1, 3, -2),
    Sketcher.Constraint("Symmetric", 2, 3, 3, 3, -2),
    Sketcher.Constraint("Vertical", 0, 3, 2, 3),
    Sketcher.Constraint("Diameter", 0, 3.1),
    Sketcher.Constraint("DistanceY", -1, 1, 0, 3, 120.0),
    Sketcher.Constraint("DistanceY", -1, 1, 2, 3, 175.0),
    Sketcher.Constraint("DistanceX", 0, 3, 1, 3, 95.0),
])
doc.recompute()
hole = doc.addObject("PartDesign::Hole", "Hole")
body.addObject(hole)
hole.Profile = sketch13
hole.ThreadType = "None"
hole.Diameter = 3.1
hole.DepthType = "ThroughAll"
hole.Reversed = True
doc.recompute()

fillet = doc.addObject("PartDesign::Fillet", "Fillet")
body.addObject(fillet)
fillet.Base = (hole, edges_at(hole, [(-51.5, 1.5, 205), (51.5, 1.5, 205)]))
fillet.Radius = 4

# Sketch on XZ plane
sketch14 = doc.addObject("Sketcher::SketchObject", "Sketch013")
body.addObject(sketch14)
sketch14.AttachmentSupport = (doc.XZ_Plane, [""])
sketch14.MapMode = "FlatFace"
sketch14.AttachmentOffset = App.Placement(Vector(0, 0, -3), App.Rotation())
sketch14.addGeometry([
    Part.Circle(Vector(-15, 102, 0), Vector(0, 0, 1), 1.6),
    Part.Circle(Vector(15, 102, 0), Vector(0, 0, 1), 1.6),
    Part.Circle(Vector(-15, 172, 0), Vector(0, 0, 1), 1.6),
], False)
sketch14.addConstraint([
    Sketcher.Constraint("Equal", 0, 1),
    Sketcher.Constraint("Equal", 1, 2),
    Sketcher.Constraint("Symmetric", 0, 3, 1, 3, -2),
    Sketcher.Constraint("Vertical", 0, 3, 2, 3),
    Sketcher.Constraint("Diameter", 0, 3.1),
    Sketcher.Constraint("DistanceX", 0, 3, -1, 1, 15.0),
    Sketcher.Constraint("DistanceY", -1, 1, 0, 3, 102.0),
    Sketcher.Constraint("DistanceY", -1, 1, 2, 3, 172.0),
])
doc.recompute()
hole2 = doc.addObject("PartDesign::Hole", "Hole001")
body.addObject(hole2)
hole2.Profile = sketch14
hole2.ThreadType = "None"
hole2.Diameter = 3.1
hole2.DepthType = "ThroughAll"
hole2.Reversed = True

doc.recompute()
